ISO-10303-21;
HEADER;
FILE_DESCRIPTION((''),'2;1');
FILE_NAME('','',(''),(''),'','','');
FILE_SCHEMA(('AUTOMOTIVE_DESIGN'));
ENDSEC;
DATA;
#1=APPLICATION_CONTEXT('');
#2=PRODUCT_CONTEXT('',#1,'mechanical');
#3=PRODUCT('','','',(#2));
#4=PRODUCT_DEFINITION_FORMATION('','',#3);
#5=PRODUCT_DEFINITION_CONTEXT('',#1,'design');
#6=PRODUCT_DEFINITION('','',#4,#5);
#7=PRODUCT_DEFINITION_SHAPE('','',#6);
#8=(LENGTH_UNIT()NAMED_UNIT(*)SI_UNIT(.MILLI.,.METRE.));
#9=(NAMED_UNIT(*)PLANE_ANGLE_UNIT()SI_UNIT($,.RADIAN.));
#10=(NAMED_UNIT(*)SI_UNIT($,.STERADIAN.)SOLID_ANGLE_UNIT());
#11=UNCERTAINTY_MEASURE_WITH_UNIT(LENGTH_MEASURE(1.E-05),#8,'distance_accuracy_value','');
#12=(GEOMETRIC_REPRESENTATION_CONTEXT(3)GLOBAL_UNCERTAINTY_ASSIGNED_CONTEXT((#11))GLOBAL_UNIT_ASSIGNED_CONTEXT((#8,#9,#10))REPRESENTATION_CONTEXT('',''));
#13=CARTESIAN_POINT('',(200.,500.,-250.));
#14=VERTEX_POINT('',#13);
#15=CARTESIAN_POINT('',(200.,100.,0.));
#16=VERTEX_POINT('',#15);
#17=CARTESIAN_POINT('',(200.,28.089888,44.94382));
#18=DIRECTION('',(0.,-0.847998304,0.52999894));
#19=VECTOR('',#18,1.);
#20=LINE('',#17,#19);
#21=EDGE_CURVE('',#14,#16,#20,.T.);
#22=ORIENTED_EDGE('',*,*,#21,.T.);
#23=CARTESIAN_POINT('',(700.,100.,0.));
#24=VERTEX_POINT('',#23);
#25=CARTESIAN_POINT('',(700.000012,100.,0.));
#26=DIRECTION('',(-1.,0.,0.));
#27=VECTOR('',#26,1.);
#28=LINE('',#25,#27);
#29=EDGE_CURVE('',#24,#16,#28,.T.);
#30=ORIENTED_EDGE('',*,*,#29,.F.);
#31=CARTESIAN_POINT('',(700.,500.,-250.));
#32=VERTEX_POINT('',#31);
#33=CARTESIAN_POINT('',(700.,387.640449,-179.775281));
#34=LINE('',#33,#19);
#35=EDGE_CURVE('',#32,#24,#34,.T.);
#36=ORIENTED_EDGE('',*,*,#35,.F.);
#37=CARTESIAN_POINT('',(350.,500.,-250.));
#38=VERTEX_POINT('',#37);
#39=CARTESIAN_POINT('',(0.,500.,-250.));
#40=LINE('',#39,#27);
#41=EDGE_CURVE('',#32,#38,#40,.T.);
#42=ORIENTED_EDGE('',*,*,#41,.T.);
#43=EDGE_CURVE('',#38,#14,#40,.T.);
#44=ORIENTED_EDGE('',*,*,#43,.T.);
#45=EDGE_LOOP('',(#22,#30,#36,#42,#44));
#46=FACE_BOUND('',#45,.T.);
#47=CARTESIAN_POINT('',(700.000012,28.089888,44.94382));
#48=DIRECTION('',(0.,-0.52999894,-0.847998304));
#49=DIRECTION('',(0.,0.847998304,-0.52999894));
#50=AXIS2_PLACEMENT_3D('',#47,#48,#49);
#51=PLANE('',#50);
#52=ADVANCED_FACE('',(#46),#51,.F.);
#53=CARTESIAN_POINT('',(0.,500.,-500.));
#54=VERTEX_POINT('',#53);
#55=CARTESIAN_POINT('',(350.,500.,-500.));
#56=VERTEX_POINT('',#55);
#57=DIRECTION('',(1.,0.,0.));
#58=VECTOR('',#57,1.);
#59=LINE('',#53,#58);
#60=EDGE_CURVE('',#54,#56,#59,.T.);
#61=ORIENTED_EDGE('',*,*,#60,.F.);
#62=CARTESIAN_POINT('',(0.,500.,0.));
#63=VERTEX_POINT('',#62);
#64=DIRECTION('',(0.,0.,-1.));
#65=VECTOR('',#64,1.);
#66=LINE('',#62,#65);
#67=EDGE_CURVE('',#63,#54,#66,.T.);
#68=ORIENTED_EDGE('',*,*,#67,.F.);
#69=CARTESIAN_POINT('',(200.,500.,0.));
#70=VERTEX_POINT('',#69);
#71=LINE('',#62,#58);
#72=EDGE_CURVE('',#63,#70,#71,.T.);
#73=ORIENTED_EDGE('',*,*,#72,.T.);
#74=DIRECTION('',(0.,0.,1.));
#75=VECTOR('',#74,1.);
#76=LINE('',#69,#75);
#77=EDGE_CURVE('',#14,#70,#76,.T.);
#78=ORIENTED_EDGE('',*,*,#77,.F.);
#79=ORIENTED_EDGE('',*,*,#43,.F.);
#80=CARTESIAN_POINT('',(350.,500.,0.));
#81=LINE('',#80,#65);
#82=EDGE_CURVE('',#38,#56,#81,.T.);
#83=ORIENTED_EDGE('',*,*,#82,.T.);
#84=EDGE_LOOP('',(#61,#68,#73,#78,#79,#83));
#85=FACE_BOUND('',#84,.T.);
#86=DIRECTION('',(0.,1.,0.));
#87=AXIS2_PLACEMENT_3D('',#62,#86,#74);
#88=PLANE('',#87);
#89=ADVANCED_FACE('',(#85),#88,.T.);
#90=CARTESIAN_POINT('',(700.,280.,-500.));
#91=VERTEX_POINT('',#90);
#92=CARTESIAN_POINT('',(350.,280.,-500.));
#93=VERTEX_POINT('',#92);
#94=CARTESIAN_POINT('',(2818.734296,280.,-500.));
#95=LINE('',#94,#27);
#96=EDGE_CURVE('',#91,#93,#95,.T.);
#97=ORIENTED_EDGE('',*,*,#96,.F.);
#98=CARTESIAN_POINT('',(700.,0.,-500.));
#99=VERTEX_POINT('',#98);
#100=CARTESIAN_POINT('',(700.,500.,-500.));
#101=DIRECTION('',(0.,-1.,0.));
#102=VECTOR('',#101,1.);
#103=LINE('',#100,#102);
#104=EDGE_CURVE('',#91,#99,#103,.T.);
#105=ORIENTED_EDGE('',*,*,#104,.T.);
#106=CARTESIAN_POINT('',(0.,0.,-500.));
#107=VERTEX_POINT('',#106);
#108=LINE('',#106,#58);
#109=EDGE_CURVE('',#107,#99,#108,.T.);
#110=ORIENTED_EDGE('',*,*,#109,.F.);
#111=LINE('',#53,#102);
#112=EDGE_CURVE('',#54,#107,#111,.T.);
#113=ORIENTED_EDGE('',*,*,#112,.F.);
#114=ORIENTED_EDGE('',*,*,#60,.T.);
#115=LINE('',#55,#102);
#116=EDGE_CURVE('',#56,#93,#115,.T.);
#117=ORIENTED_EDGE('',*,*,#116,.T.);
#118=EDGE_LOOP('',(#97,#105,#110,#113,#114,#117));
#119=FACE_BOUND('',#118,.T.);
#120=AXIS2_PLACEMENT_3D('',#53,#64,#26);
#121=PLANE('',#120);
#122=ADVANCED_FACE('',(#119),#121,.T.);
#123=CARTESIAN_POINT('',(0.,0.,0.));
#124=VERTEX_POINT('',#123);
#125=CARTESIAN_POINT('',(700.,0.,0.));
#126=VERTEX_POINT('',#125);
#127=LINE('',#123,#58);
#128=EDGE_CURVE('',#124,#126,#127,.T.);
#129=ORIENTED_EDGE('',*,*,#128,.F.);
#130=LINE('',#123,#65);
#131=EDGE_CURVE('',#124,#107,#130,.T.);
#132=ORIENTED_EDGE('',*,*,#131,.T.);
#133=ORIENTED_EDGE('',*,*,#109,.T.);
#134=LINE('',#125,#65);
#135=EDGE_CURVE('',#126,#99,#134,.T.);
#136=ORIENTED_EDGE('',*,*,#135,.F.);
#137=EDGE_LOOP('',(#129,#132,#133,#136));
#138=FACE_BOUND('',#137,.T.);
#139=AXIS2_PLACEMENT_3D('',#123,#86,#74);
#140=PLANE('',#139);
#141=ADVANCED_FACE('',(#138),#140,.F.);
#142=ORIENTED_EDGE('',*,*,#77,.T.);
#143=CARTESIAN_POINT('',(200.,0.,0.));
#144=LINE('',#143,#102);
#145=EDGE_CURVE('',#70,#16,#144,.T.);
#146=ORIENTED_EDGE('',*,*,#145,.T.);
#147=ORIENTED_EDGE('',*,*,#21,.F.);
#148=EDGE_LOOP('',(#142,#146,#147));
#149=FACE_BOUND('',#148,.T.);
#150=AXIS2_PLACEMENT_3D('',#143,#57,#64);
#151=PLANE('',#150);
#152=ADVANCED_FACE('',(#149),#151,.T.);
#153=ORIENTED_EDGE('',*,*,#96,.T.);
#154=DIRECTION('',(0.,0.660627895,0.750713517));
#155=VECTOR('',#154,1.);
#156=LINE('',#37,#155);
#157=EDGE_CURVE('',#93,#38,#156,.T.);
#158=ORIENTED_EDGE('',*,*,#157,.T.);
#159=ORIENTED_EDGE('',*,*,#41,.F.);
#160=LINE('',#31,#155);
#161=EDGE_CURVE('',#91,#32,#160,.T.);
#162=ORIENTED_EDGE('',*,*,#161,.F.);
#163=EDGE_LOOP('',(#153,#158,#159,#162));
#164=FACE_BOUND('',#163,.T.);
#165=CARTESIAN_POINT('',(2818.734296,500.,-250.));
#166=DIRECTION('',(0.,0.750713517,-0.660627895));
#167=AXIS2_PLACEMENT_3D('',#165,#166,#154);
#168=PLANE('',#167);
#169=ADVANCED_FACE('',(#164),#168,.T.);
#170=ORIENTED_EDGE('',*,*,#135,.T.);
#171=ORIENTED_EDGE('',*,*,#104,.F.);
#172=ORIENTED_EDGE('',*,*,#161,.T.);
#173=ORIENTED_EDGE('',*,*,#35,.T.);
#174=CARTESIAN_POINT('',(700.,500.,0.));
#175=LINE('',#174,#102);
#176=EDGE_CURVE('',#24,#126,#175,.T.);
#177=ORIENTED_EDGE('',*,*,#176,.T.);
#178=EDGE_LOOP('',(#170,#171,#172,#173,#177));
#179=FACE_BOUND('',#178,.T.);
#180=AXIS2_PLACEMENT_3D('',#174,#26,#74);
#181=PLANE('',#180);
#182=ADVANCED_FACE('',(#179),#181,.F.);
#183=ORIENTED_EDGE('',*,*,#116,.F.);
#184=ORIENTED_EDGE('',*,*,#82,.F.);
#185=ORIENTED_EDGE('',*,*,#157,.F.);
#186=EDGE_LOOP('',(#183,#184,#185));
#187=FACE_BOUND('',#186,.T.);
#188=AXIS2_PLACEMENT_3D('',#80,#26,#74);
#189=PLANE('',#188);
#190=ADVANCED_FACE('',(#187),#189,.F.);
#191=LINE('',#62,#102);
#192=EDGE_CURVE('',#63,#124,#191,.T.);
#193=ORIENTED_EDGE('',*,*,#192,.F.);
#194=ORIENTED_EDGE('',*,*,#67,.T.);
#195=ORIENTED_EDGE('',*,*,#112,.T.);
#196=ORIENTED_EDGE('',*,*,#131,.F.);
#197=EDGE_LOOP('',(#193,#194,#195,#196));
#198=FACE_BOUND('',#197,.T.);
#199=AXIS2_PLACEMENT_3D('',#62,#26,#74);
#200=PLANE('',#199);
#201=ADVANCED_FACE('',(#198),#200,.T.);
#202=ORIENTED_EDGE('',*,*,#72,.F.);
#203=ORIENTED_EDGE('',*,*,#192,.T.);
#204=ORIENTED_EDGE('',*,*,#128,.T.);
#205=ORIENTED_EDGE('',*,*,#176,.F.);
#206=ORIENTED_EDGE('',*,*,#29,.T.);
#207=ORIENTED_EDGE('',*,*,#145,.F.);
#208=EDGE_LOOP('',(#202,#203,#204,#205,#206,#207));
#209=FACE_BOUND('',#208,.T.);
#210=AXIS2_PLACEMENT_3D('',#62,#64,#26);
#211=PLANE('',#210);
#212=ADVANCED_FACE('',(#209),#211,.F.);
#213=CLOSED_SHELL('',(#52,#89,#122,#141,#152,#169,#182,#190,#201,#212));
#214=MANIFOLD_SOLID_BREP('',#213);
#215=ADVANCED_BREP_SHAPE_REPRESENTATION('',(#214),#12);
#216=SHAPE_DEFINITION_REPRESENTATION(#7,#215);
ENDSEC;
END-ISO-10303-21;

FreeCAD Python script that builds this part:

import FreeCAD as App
import Part
import Sketcher

doc = App.newDocument("Part")
params = doc.addObject("Spreadsheet::Sheet", "Params")
for row, (alias, value) in enumerate([
    ("sketch1_width", "700 mm"),
    ("sketch1_height", "500 mm"),
    ("pad1_length", "500 mm"),
    ("sketch2_width", "400 mm"),
    ("sketch2_height", "250 mm"),
    ("pocket1_length", "1 mm"),
    ("pocket1_length2", "500 mm"),
    ("sketch3_width", "220 mm"),
    ("sketch3_height", "250 mm"),
    ("pocket2_length", "1 mm"),
    ("pocket2_length2", "350 mm"),
], start=1):
    params.set(f"A{row}", alias)
    params.set(f"B{row}", "=" + value)
    params.setAlias(f"B{row}", alias)

body = doc.addObject("PartDesign::Body", "Body")

sketch1 = doc.addObject("Sketcher::SketchObject", "Sketch")
body.addObject(sketch1)
sketch1.AttachmentSupport = (doc.XZ_Plane, [""])
sketch1.MapMode = "FlatFace"
sketch1.addGeometry([
    Part.LineSegment(App.Vector(0, -500, 0), App.Vector(0, 0, 0)),
    Part.LineSegment(App.Vector(0, 0, 0), App.Vector(700, 0, 0)),
    Part.LineSegment(App.Vector(700, 0, 0), App.Vector(700, -500, 0)),
    Part.LineSegment(App.Vector(700, -500, 0), App.Vector(0, -500, 0)),
], False)
sketch1.addConstraint([
    Sketcher.Constraint("Coincident", 0, 2, 1, 1),
    Sketcher.Constraint("Coincident", 1, 2, 2, 1),
    Sketcher.Constraint("Coincident", 2, 2, 3, 1),
    Sketcher.Constraint("Coincident", 3, 2, 0, 1),
    Sketcher.Constraint("Vertical", 0),
    Sketcher.Constraint("Horizontal", 1),
    Sketcher.Constraint("Vertical", 2),
    Sketcher.Constraint("Horizontal", 3),
    Sketcher.Constraint("Coincident", 0, 2, -1, 1),
    Sketcher.Constraint("DistanceX", 1, 1, 1, 2, 700.0),
    Sketcher.Constraint("DistanceY", 0, 1, 0, 2, 500.0),
])
sketch1.setExpression("Constraints[9]", "Params.sketch1_width")
sketch1.setExpression("Constraints[10]", "Params.sketch1_height")
pad1 = doc.addObject("PartDesign::Pad", "Pad")
body.addObject(pad1)
pad1.Profile = sketch1
pad1.setExpression("Length", "Params.pad1_length")
pad1.Reversed = True

sketch2 = doc.addObject("Sketcher::SketchObject", "Sketch001")
body.addObject(sketch2)
sketch2.AttachmentSupport = (doc.YZ_Plane, [""])
sketch2.MapMode = "FlatFace"
sketch2.AttachmentOffset = App.Placement(App.Vector(0, 0, 700), App.Rotation())
sketch2.addGeometry([
    Part.LineSegment(App.Vector(100, 0, 0), App.Vector(500, -250, 0)),
    Part.LineSegment(App.Vector(500, -250, 0), App.Vector(500, 0, 0)),
    Part.LineSegment(App.Vector(500, 0, 0), App.Vector(100, 0, 0)),
], False)
sketch2.addConstraint([
    Sketcher.Constraint("Coincident", 0, 2, 1, 1),
    Sketcher.Constraint("Coincident", 1, 2, 2, 1),
    Sketcher.Constraint("Coincident", 2, 2, 0, 1),
    Sketcher.Constraint("Vertical", 1),
    Sketcher.Constraint("Horizontal", 2),
    Sketcher.Constraint("PointOnObject", 1, 2, -1),
    Sketcher.Constraint("DistanceX", 2, 2, 2, 1, 400.0),
    Sketcher.Constraint("DistanceY", 1, 1, 1, 2, 250.0),
    Sketcher.Constraint("DistanceX", -1, 1, 0, 2, 500.0),
])
sketch2.setExpression("Constraints[6]", "Params.sketch2_width")
sketch2.setExpression("Constraints[7]", "Params.sketch2_height")
pocket1 = doc.addObject("PartDesign::Pocket", "Pocket")
body.addObject(pocket1)
pocket1.Profile = sketch2
pocket1.Type = "TwoLengths"
pocket1.setExpression("Length", "Params.pocket1_length")
pocket1.setExpression("Length2", "Params.pocket1_length2")
pocket1.Reversed = True

sketch3 = doc.addObject("Sketcher::SketchObject", "Sketch002")
body.addObject(sketch3)
sketch3.AttachmentSupport = (doc.YZ_Plane, [""])
sketch3.MapMode = "FlatFace"
sketch3.AttachmentOffset = App.Placement(App.Vector(0, 0, 700), App.Rotation())
sketch3.addGeometry([
    Part.LineSegment(App.Vector(500, -500, 0), App.Vector(500, -250, 0)),
    Part.LineSegment(App.Vector(500, -250, 0), App.Vector(280, -500, 0)),
    Part.LineSegment(App.Vector(280, -500, 0), App.Vector(500, -500, 0)),
], False)
sketch3.addConstraint([
    Sketcher.Constraint("Coincident", 0, 2, 1, 1),
    Sketcher.Constraint("Coincident", 1, 2, 2, 1),
    Sketcher.Constraint("Coincident", 2, 2, 0, 1),
    Sketcher.Constraint("Vertical", 0),
    Sketcher.Constraint("Horizontal", 2),
    Sketcher.Constraint("DistanceX", 2, 1, 2, 2, 220.0),
    Sketcher.Constraint("DistanceY", 0, 1, 0, 2, 250.0),
    Sketcher.Constraint("DistanceX", -1, 1, 0, 2, 500.0),
    Sketcher.Constraint("DistanceY", 0, 2, -1, 1, 250.0),
])
sketch3.setExpression("Constraints[5]", "Params.sketch3_width")
sketch3.setExpression("Constraints[6]", "Params.sketch3_height")
pocket2 = doc.addObject("PartDesign::Pocket", "Pocket001")
body.addObject(pocket2)
pocket2.Profile = sketch3
pocket2.Type = "TwoLengths"
pocket2.setExpression("Length", "Params.pocket2_length")
pocket2.setExpression("Length2", "Params.pocket2_length2")
pocket2.Reversed = True

doc.recompute()
